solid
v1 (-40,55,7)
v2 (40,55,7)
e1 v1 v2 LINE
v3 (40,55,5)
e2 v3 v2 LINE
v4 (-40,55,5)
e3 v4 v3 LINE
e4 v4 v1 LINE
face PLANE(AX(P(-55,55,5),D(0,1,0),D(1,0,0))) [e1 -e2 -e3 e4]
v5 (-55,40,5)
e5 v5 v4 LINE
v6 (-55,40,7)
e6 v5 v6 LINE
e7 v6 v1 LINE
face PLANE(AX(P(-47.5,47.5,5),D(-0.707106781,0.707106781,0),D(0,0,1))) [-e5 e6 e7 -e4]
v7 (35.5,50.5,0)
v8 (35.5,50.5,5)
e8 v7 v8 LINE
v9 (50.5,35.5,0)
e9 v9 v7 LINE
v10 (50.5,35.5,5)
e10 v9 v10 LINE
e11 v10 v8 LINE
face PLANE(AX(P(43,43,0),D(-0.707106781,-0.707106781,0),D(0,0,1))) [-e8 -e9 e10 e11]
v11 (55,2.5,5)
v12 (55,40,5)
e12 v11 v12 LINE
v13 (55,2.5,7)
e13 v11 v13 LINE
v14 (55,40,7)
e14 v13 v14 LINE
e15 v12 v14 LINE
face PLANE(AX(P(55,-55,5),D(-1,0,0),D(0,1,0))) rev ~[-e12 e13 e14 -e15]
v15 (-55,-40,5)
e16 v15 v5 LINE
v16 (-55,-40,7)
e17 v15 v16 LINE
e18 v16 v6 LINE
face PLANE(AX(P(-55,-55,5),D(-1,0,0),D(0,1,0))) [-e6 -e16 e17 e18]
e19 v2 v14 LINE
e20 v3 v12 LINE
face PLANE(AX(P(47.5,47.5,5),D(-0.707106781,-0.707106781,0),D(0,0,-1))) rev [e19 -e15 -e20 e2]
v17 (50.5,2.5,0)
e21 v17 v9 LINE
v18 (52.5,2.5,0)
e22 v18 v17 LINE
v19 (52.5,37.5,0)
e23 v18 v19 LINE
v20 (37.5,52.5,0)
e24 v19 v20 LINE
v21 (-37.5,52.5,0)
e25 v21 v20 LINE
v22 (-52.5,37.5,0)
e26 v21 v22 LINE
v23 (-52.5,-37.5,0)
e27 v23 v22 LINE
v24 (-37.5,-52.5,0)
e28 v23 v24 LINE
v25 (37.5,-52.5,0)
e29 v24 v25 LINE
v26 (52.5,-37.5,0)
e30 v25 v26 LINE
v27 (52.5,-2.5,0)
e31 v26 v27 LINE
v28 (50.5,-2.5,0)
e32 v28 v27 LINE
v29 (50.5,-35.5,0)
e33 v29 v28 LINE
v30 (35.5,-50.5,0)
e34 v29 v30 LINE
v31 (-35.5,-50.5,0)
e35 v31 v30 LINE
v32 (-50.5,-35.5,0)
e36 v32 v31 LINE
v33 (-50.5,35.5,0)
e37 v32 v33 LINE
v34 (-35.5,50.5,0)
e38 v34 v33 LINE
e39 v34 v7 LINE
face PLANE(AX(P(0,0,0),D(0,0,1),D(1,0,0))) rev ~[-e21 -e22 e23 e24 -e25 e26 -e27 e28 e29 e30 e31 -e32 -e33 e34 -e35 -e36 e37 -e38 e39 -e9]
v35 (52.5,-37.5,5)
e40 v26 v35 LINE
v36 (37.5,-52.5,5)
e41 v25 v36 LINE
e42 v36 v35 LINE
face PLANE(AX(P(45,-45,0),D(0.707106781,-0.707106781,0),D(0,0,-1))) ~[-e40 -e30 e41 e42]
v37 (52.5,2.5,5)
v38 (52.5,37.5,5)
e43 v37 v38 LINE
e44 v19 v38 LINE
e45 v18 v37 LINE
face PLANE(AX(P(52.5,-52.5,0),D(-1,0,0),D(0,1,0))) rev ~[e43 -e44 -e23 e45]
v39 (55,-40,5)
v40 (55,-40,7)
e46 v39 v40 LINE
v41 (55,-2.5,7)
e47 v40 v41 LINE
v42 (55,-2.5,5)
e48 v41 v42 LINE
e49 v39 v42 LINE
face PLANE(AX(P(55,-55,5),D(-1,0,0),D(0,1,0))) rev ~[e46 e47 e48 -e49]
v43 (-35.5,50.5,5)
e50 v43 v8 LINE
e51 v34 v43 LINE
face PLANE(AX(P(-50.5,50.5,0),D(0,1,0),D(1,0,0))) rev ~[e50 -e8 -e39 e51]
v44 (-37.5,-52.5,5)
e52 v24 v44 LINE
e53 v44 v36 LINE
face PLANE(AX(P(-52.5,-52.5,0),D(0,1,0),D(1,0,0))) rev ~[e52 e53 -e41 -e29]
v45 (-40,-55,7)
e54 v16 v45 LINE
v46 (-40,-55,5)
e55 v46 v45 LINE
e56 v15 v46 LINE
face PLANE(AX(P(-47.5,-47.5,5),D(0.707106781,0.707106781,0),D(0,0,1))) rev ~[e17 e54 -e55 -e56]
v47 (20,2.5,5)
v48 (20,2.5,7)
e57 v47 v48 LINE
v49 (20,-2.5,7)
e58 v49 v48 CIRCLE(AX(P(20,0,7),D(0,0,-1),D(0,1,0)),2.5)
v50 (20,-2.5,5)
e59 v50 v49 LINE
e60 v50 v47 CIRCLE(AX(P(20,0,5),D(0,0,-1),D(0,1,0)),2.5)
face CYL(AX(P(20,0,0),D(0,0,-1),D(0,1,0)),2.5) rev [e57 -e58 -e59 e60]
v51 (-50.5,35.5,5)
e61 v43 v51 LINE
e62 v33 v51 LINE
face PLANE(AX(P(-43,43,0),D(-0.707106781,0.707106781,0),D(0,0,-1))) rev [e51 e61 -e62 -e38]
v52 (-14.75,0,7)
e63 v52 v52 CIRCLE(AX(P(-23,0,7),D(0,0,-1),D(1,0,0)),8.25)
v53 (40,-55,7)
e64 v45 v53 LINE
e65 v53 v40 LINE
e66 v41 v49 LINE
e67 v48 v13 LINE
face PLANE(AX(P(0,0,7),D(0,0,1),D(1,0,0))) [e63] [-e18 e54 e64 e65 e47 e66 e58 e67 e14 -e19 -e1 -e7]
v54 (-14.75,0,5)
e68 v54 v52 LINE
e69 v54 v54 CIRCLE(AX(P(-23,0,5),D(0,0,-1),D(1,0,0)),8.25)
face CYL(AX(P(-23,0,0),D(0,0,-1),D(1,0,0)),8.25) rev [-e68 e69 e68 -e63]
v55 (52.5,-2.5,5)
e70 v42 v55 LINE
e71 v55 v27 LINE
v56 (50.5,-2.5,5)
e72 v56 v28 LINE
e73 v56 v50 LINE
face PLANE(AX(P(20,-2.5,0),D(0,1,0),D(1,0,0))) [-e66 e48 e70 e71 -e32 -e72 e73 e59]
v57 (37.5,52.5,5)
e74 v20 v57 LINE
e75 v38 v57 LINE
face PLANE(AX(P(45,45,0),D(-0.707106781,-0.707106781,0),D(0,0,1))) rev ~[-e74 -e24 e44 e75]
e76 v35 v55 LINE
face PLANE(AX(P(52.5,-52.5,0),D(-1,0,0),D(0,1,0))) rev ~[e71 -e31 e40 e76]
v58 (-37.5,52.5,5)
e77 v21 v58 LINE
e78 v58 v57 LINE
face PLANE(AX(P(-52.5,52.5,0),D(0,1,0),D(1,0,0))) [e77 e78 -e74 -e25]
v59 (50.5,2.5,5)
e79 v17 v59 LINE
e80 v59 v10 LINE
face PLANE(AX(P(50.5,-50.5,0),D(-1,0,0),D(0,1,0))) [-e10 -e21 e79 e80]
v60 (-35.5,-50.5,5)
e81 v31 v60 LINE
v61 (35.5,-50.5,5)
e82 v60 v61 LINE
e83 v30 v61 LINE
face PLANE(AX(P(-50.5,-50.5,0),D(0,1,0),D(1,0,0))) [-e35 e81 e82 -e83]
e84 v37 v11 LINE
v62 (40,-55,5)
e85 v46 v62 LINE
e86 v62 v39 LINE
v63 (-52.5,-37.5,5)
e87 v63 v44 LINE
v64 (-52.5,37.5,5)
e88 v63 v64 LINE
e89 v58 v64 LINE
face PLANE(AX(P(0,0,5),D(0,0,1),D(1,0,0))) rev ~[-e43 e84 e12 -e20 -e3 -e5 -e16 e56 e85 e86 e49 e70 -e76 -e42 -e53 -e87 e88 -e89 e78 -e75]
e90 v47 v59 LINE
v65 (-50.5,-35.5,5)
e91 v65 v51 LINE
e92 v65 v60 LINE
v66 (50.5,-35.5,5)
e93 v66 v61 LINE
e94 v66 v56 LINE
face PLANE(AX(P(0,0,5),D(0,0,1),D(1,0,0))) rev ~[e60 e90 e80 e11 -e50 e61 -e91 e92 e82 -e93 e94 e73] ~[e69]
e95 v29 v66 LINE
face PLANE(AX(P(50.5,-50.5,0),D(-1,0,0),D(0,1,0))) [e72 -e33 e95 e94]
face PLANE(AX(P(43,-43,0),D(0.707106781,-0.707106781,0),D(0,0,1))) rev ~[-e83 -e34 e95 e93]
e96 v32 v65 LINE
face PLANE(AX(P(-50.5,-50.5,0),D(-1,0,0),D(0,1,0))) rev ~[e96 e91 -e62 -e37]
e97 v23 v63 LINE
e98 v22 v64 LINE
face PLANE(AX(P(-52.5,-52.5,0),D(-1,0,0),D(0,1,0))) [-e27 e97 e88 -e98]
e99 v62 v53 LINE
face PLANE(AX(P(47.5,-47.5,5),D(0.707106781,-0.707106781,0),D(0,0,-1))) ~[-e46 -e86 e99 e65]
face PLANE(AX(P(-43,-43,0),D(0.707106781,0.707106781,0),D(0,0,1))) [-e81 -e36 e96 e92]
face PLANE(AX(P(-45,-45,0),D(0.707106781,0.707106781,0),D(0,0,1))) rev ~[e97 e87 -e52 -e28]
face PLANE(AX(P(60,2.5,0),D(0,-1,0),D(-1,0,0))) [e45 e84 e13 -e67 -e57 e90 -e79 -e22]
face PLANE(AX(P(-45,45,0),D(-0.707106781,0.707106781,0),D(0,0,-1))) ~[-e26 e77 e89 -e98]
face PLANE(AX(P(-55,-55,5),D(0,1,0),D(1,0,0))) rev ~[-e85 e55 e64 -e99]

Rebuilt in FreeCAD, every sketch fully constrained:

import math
import FreeCAD as App
import Part
import Sketcher
Q = App.Units.Quantity


def edges_at(feature, points):
    """Names of the edges that pass closest to the given points."""
    edges = feature.Shape.Edges
    near = lambda p: min(range(len(edges)), key=lambda i: edges[i].distToShape(Part.Vertex(*p))[0])
    return sorted({f"Edge{near(p) + 1}" for p in points})


def add_polygon(sketch, points):
    """Adds a closed chain of lines whose ends are joined by coincident constraints."""
    first, n = sketch.GeometryCount, len(points)
    for a, b in zip(points, points[1:] + points[:1]):
        sketch.addGeometry(Part.LineSegment(App.Vector(*a, 0), App.Vector(*b, 0)), False)
    for i in range(n):
        sketch.addConstraint(Sketcher.Constraint("Coincident", first + i, 2, first + (i + 1) % n, 1))

doc = App.newDocument("Part")
params = doc.addObject("Spreadsheet::Sheet", "Params")
for row, (alias, value) in enumerate([
    ("sketch1_radius", "2.5 mm"),
    ("sketch1_width", "40 mm"),
    ("pad1_length", "10 mm"),
    ("sketch2_diameter", "16.5 mm"),
    ("pad2_length", "10 mm"),
    ("sketch3_width", "101 mm"),
    ("pad3_length", "5 mm"),
    ("sketch4_width", "105 mm"),
    ("pad4_length", "5 mm"),
    ("sketch5_width", "110 mm"),
    ("pad5_length", "2 mm"),
    ("chamfer_size", "15 mm"),
], start=1):
    params.set(f"A{row}", alias)
    params.set(f"B{row}", "=" + value)
    params.setAlias(f"B{row}", alias)

body = doc.addObject("PartDesign::Body", "Body")

# Sketch on XY plane
sketch1 = body.newObject("Sketcher::SketchObject", "Sketch")
sketch1.AttachmentSupport = (doc.getObject("XY_Plane"), [""])
sketch1.MapMode = "FlatFace"
sketch1.addGeometry([
    Part.LineSegment(App.Vector(60, -2.5, 0), App.Vector(60, 2.5, 0)),
    Part.LineSegment(App.Vector(60, 2.5, 0), App.Vector(20, 2.5, 0)),
    Part.ArcOfCircle(Part.Circle(App.Vector(20, 0, 0), App.Vector(0, 0, 1), 2.5), math.radians(90), math.radians(270)),
    Part.LineSegment(App.Vector(20, -2.5, 0), App.Vector(60, -2.5, 0)),
], False)
sketch1.addConstraint([
    Sketcher.Constraint("Coincident", 0, 2, 1, 1),
    Sketcher.Constraint("Tangent", 1, 2, 2, 1),
    Sketcher.Constraint("Tangent", 2, 2, 3, 1),
    Sketcher.Constraint("Coincident", 3, 2, 0, 1),
    Sketcher.Constraint("Vertical", 0),
    Sketcher.Constraint("Horizontal", 1),
    Sketcher.Constraint("Horizontal", 3),
    Sketcher.Constraint("PointOnObject", 2, 3, -1),
    Sketcher.Constraint("Radius", 2, Q("2.5 mm")),
    Sketcher.Constraint("DistanceX", 1, 2, 1, 1, Q("40 mm")),
    Sketcher.Constraint("DistanceX", -1, 1, 2, 3, Q("20 mm")),
])
sketch1.setExpression("Constraints[8]", "Params.sketch1_radius")
sketch1.setExpression("Constraints[9]", "Params.sketch1_width")
pad1 = body.newObject("PartDesign::Pad", "Pad")
pad1.Profile = sketch1
pad1.setExpression("Length", "Params.pad1_length")
body2 = doc.addObject("PartDesign::Body", "Body001")

# Sketch on XY plane
sketch2 = body2.newObject("Sketcher::SketchObject", "Sketch001")
sketch2.AttachmentSupport = (doc.getObject("XY_Plane001"), [""])
sketch2.MapMode = "FlatFace"
sketch2.addGeometry(Part.Circle(App.Vector(-23, 0, 0), App.Vector(0, 0, 1), 8.25), False)
sketch2.addConstraint([
    Sketcher.Constraint("PointOnObject", 0, 3, -1),
    Sketcher.Constraint("Diameter", 0, Q("16.5 mm")),
    Sketcher.Constraint("DistanceX", 0, 3, -1, 1, Q("23 mm")),
])
sketch2.setExpression("Constraints[1]", "Params.sketch2_diameter")
pad2 = body2.newObject("PartDesign::Pad", "Pad001")
pad2.Profile = sketch2
pad2.setExpression("Length", "Params.pad2_length")
body3 = doc.addObject("PartDesign::Body", "Body002")

# Sketch on XY plane
sketch3 = body3.newObject("Sketcher::SketchObject", "Sketch002")
sketch3.AttachmentSupport = (doc.getObject("XY_Plane002"), [""])
sketch3.MapMode = "FlatFace"
add_polygon(sketch3, [(-50.5, 50.5), (-50.5, -50.5), (50.5, -50.5), (50.5, 50.5)])  # lines 0-3
sketch3.addConstraint([
    Sketcher.Constraint("Vertical", 0),
    Sketcher.Constraint("Horizontal", 1),
    Sketcher.Constraint("Vertical", 2),
    Sketcher.Constraint("Horizontal", 3),
    Sketcher.Constraint("Symmetric", 0, 2, 2, 2, -1, 1),
    Sketcher.Constraint("Equal", 3, 0),
    Sketcher.Constraint("DistanceX", 1, 1, 1, 2, Q("101 mm")),
])
sketch3.setExpression("Constraints[10]", "Params.sketch3_width")
pad3 = body3.newObject("PartDesign::Pad", "Pad002")
pad3.Profile = sketch3
pad3.setExpression("Length", "Params.pad3_length")
body4 = doc.addObject("PartDesign::Body", "Body003")

# Sketch on XY plane
sketch4 = body4.newObject("Sketcher::SketchObject", "Sketch003")
sketch4.AttachmentSupport = (doc.getObject("XY_Plane003"), [""])
sketch4.MapMode = "FlatFace"
add_polygon(sketch4, [(-52.5, 52.5), (-52.5, -52.5), (52.5, -52.5), (52.5, 52.5)])  # lines 0-3
sketch4.addConstraint([
    Sketcher.Constraint("Vertical", 0),
    Sketcher.Constraint("Horizontal", 1),
    Sketcher.Constraint("Vertical", 2),
    Sketcher.Constraint("Horizontal", 3),
    Sketcher.Constraint("Symmetric", 0, 2, 2, 2, -1, 1),
    Sketcher.Constraint("Equal", 3, 0),
    Sketcher.Constraint("DistanceX", 1, 1, 1, 2, Q("105 mm")),
])
sketch4.setExpression("Constraints[10]", "Params.sketch4_width")
pad4 = body4.newObject("PartDesign::Pad", "Pad003")
pad4.Profile = sketch4
pad4.setExpression("Length", "Params.pad4_length")

# Sketch on XY plane
sketch5 = body4.newObject("Sketcher::SketchObject", "Sketch004")
sketch5.AttachmentSupport = (doc.getObject("XY_Plane003"), [""])
sketch5.MapMode = "FlatFace"
sketch5.AttachmentOffset = App.Placement(App.Vector(0, 0, 5), App.Rotation())
add_polygon(sketch5, [(-55, 55), (-55, -55), (55, -55), (55, 55)])  # lines 0-3
sketch5.addConstraint([
    Sketcher.Constraint("Vertical", 0),
    Sketcher.Constraint("Horizontal", 1),
    Sketcher.Constraint("Vertical", 2),
    Sketcher.Constraint("Horizontal", 3),
    Sketcher.Constraint("Symmetric", 0, 2, 2, 2, -1, 1),
    Sketcher.Constraint("Equal", 3, 0),
    Sketcher.Constraint("DistanceX", 1, 1, 1, 2, Q("110 mm")),
])
sketch5.setExpression("Constraints[10]", "Params.sketch5_width")
pad5 = body4.newObject("PartDesign::Pad", "Pad004")
pad5.Profile = sketch5
pad5.setExpression("Length", "Params.pad5_length")
doc.recompute()

boolean = body4.newObject("PartDesign::Boolean", "Boolean")
boolean.Type = "Cut"
boolean.addObjects([body3])
doc.recompute()

boolean2 = body4.newObject("PartDesign::Boolean", "Boolean001")
boolean2.Type = "Cut"
boolean2.addObjects([body2])
doc.recompute()

boolean3 = body4.newObject("PartDesign::Boolean", "Boolean002")
boolean3.Type = "Cut"
boolean3.addObjects([body])
doc.recompute()

chamfer = body4.newObject("PartDesign::Chamfer", "Chamfer")
chamfer.Base = (boolean3, edges_at(boolean3, [
    (-55, 55, 6),
    (55, 55, 6),
    (-55, -55, 6),
    (55, -55, 6),
    (52.5, 52.5, 2.5),
    (-52.5, 52.5, 2.5),
    (-52.5, -52.5, 2.5),
    (52.5, -52.5, 2.5),
    (50.5, 50.5, 2.5),
    (50.5, -50.5, 2.5),
    (-50.5, 50.5, 2.5),
    (-50.5, -50.5, 2.5),
]))
chamfer.setExpression("Size", "Params.chamfer_size")

doc.recompute()
